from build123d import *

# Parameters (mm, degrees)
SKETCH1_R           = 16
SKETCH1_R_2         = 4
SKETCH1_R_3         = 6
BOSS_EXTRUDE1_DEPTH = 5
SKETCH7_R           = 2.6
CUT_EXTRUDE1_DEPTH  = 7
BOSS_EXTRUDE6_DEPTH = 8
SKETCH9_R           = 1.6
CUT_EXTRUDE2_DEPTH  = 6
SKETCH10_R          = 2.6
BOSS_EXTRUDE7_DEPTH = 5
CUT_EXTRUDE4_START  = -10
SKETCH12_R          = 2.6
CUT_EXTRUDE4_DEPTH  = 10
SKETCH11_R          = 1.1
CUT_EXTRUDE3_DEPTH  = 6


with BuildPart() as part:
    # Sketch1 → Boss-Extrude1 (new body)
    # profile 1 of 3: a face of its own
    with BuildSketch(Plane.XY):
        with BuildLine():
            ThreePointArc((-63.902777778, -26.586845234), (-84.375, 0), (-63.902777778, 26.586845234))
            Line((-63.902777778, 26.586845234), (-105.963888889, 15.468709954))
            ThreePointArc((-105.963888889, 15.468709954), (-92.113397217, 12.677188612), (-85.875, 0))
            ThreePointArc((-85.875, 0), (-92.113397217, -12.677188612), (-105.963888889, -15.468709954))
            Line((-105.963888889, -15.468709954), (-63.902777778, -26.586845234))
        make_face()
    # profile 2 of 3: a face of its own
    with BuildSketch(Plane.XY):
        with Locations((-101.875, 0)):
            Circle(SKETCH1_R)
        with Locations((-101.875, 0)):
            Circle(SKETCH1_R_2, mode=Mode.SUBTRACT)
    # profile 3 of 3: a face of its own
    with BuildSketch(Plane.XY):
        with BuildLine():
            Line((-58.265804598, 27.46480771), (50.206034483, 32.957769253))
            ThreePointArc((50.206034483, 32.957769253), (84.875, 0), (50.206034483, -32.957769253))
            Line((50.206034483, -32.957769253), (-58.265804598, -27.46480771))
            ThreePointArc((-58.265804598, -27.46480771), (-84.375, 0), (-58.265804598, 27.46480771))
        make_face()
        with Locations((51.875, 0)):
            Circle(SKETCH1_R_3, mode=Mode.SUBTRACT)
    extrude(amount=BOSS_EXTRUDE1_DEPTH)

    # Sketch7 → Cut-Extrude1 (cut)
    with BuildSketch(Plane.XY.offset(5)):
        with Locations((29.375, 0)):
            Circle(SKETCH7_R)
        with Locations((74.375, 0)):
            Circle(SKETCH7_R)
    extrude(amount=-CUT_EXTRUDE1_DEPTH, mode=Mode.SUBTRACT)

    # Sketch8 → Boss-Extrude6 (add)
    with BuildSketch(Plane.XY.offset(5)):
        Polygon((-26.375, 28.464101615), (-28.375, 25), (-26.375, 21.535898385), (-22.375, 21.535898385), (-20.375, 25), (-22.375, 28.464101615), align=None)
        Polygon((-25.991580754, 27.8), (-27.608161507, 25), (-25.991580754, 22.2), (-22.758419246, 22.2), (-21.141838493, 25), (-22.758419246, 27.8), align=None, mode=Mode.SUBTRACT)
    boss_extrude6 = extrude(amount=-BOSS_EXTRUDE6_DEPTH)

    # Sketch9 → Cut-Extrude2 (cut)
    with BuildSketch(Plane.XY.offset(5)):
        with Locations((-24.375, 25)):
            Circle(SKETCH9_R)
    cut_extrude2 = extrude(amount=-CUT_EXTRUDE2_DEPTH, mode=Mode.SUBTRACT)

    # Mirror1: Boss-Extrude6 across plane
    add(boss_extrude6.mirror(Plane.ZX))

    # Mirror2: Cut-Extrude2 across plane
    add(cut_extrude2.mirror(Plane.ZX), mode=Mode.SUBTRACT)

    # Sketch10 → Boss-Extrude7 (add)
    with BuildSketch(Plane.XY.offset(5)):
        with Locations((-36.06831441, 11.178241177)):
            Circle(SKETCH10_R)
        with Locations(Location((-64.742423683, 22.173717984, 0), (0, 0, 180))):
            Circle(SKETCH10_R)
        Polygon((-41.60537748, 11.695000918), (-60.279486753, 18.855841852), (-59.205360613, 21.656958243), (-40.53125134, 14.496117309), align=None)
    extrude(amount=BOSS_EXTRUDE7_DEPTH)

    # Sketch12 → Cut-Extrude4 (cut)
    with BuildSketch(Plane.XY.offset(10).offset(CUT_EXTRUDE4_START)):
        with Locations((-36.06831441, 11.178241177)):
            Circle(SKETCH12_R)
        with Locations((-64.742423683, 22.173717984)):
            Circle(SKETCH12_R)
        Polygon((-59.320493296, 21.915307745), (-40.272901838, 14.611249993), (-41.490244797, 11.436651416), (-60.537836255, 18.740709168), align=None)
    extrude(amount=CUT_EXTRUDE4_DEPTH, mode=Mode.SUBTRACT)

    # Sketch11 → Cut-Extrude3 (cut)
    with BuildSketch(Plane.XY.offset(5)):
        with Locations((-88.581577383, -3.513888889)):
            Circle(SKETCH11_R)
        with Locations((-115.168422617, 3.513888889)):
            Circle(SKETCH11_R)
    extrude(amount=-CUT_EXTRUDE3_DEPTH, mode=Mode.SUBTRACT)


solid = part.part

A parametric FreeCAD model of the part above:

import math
import FreeCAD as App
import Part
import Sketcher
from FreeCAD import Vector
Q = App.Units.Quantity

doc = App.newDocument("Part")
body = doc.addObject("PartDesign::Body", "Body")

# Sketch on XY plane
sketch1 = body.newObject("Sketcher::SketchObject", "Sketch")
sketch1.AttachmentSupport = (doc.getObject("XY_Plane"), [""])
sketch1.MapMode = "FlatFace"
sketch1.addGeometry([
    Part.LineSegment(Vector(-63.9, 26.6, 0), Vector(-106, 15.5, 0)),  # 0
    Part.ArcOfCircle(Part.Circle(Vector(-101.9, 0, 0), Vector(0, 0, 1), 16), math.radians(105), math.radians(255)),  # 1
    Part.LineSegment(Vector(-106, -15.5, 0), Vector(-63.9, -26.6, 0)),  # 2
    Part.ArcOfCircle(Part.Circle(Vector(-56.9, 0, 0), Vector(0, 0, 1), 27.5), math.radians(-104.81), math.radians(-92.9)),  # 3
    Part.LineSegment(Vector(-58.3, -27.5, 0), Vector(50.2, -33, 0)),  # 4
    Part.ArcOfCircle(Part.Circle(Vector(51.9, 0, 0), Vector(0, 0, 1), 33), math.radians(-93), math.radians(93)),  # 5
    Part.LineSegment(Vector(50.2, 33, 0), Vector(-58.3, 27.5, 0)),  # 6
    Part.ArcOfCircle(Part.Circle(Vector(-56.9, 0, 0), Vector(0, 0, 1), 27.5), math.radians(92.9), math.radians(104.81)),  # 7
    Part.Circle(Vector(51.9, 0, 0), Vector(0, 0, 1), 6),  # 8
    Part.Circle(Vector(-101.9, 0, 0), Vector(0, 0, 1), 4),  # 9
], False)
sketch1.addConstraint([
    Sketcher.Constraint("Tangent", 0, 2, 1, 1),
    Sketcher.Constraint("Tangent", 1, 2, 2, 1),
    Sketcher.Constraint("Tangent", 2, 2, 3, 1),
    Sketcher.Constraint("Tangent", 3, 2, 4, 1),
    Sketcher.Constraint("Tangent", 4, 2, 5, 1),
    Sketcher.Constraint("Tangent", 5, 2, 6, 1),
    Sketcher.Constraint("Tangent", 6, 2, 7, 1),
    Sketcher.Constraint("Tangent", 7, 2, 0, 1),
    Sketcher.Constraint("Coincident", 7, 3, 3, 3),
    Sketcher.Constraint("Coincident", 8, 3, 5, 3),
    Sketcher.Constraint("Coincident", 9, 3, 1, 3),
    Sketcher.Constraint("Equal", 3, 7),
    Sketcher.Constraint("Symmetric", 0, 2, 1, 2, -1),
    Sketcher.Constraint("PointOnObject", 5, 3, -1),
    Sketcher.Constraint("Diameter", 8, 12.0),
    Sketcher.Constraint("Diameter", 9, 8.0),
    Sketcher.Constraint("Radius", 1, 16.0),
    Sketcher.Constraint("Radius", 5, 33.0),
    Sketcher.Constraint("Radius", 3, 27.5),
    Sketcher.Constraint("DistanceX", 1, 3, 3, 3, 45.0),
    Sketcher.Constraint("DistanceX", 3, 3, 5, 3, 108.75),
    Sketcher.Constraint("DistanceX", 1, 3, -1, 1, 101.875),
])
pad1 = body.newObject("PartDesign::Pad", "Pad")
pad1.Profile = sketch1
pad1.Length = 5

# Sketch on XY plane
sketch2 = body.newObject("Sketcher::SketchObject", "Sketch001")
sketch2.AttachmentSupport = (doc.getObject("XY_Plane"), [""])
sketch2.MapMode = "FlatFace"
sketch2.AttachmentOffset = App.Placement(Vector(0, 0, 5), App.Rotation())
sketch2.addGeometry([
    Part.Circle(Vector(29.4, 0, 0), Vector(0, 0, 1), 2.6),
    Part.Circle(Vector(74.4, 0, 0), Vector(0, 0, 1), 2.6),
], False)
sketch2.addConstraint([
    Sketcher.Constraint("Equal", 0, 1),
    Sketcher.Constraint("PointOnObject", 0, 3, -1),
    Sketcher.Constraint("PointOnObject", 1, 3, -1),
    Sketcher.Constraint("Diameter", 0, 5.2),
    Sketcher.Constraint("DistanceX", 0, 3, 1, 3, 45.0),
    Sketcher.Constraint("DistanceX", -1, 1, 0, 3, 29.375),
])
pocket1 = body.newObject("PartDesign::Pocket", "Pocket")
pocket1.Profile = sketch2
pocket1.Length = 7

# Sketch on XY plane
sketch3 = body.newObject("Sketcher::SketchObject", "Sketch002")
sketch3.AttachmentSupport = (doc.getObject("XY_Plane"), [""])
sketch3.MapMode = "FlatFace"
sketch3.AttachmentOffset = App.Placement(Vector(0, 0, 5), App.Rotation())
sketch3.addGeometry([
    Part.LineSegment(Vector(-26.4, 28.5, 0), Vector(-28.4, 25, 0)),  # 0
    Part.LineSegment(Vector(-28.4, 25, 0), Vector(-26.4, 21.5, 0)),  # 1
    Part.LineSegment(Vector(-26.4, 21.5, 0), Vector(-22.4, 21.5, 0)),  # 2
    Part.LineSegment(Vector(-22.4, 21.5, 0), Vector(-20.4, 25, 0)),  # 3
    Part.LineSegment(Vector(-20.4, 25, 0), Vector(-22.4, 28.5, 0)),  # 4
    Part.LineSegment(Vector(-22.4, 28.5, 0), Vector(-26.4, 28.5, 0)),  # 5
    Part.LineSegment(Vector(-27.6, 25, 0), Vector(-26, 27.8, 0)),  # 6
    Part.LineSegment(Vector(-26, 27.8, 0), Vector(-22.8, 27.8, 0)),  # 7
    Part.LineSegment(Vector(-22.8, 27.8, 0), Vector(-21.1, 25, 0)),  # 8
    Part.LineSegment(Vector(-21.1, 25, 0), Vector(-22.8, 22.2, 0)),  # 9
    Part.LineSegment(Vector(-22.8, 22.2, 0), Vector(-26, 22.2, 0)),  # 10
    Part.LineSegment(Vector(-26, 22.2, 0), Vector(-27.6, 25, 0)),  # 11
], False)
sketch3.addConstraint([
    Sketcher.Constraint("Coincident", 0, 2, 1, 1),
    Sketcher.Constraint("Coincident", 1, 2, 2, 1),
    Sketcher.Constraint("Coincident", 2, 2, 3, 1),
    Sketcher.Constraint("Coincident", 3, 2, 4, 1),
    Sketcher.Constraint("Coincident", 4, 2, 5, 1),
    Sketcher.Constraint("Coincident", 5, 2, 0, 1),
    Sketcher.Constraint("Coincident", 6, 2, 7, 1),
    Sketcher.Constraint("Coincident", 7, 2, 8, 1),
    Sketcher.Constraint("Coincident", 8, 2, 9, 1),
    Sketcher.Constraint("Coincident", 9, 2, 10, 1),
    Sketcher.Constraint("Coincident", 10, 2, 11, 1),
    Sketcher.Constraint("Coincident", 11, 2, 6, 1),
    Sketcher.Constraint("Horizontal", 2),
    Sketcher.Constraint("Horizontal", 5),
    Sketcher.Constraint("Horizontal", 7),
    Sketcher.Constraint("Horizontal", 10),
    Sketcher.Constraint("Parallel", 0, 3),
    Sketcher.Constraint("Parallel", 1, 4),
    Sketcher.Constraint("Parallel", 3, 6),
    Sketcher.Constraint("Parallel", 4, 8),
    Sketcher.Constraint("Parallel", 6, 9),
    Sketcher.Constraint("Parallel", 8, 11),
    Sketcher.Constraint("Horizontal", 0, 2, 3, 2),
    Sketcher.Constraint("Horizontal", 3, 2, 8, 2),
    Sketcher.Constraint("Horizontal", 8, 2, 11, 2),
    Sketcher.Constraint("Vertical", 2, 2, 4, 2),
    Sketcher.Constraint("Vertical", 1, 2, 5, 2),
    Sketcher.Constraint("Vertical", 7, 2, 9, 2),
    Sketcher.Constraint("DistanceX", 2, 1, 2, 2, 4.0),
    Sketcher.Constraint("Angle", 0, Q("-120 deg")),
    Sketcher.Constraint("Distance", 0, 4.0),
    Sketcher.Constraint("DistanceY", -1, 1, 0, 2, 25.0),
    Sketcher.Constraint("DistanceY", -1, 1, 6, 2, 27.8),
    Sketcher.Constraint("DistanceX", 0, 2, -1, 1, 28.375),
    Sketcher.Constraint("DistanceX", 7, 1, 7, 2, 3.233162),
    Sketcher.Constraint("DistanceX", 6, 2, -1, 1, 25.991581),
])
pad2 = body.newObject("PartDesign::Pad", "Pad001")
pad2.Profile = sketch3
pad2.Length = 8
pad2.Reversed = True

# Sketch on XY plane
sketch4 = body.newObject("Sketcher::SketchObject", "Sketch003")
sketch4.AttachmentSupport = (doc.getObject("XY_Plane"), [""])
sketch4.MapMode = "FlatFace"
sketch4.AttachmentOffset = App.Placement(Vector(0, 0, 5), App.Rotation())
sketch4.addGeometry(Part.Circle(Vector(-24.4, 25, 0), Vector(0, 0, 1), 1.6), False)
sketch4.addConstraint([
    Sketcher.Constraint("Diameter", 0, 3.2),
    Sketcher.Constraint("DistanceY", -1, 1, 0, 3, 25.0),
    Sketcher.Constraint("DistanceX", 0, 3, -1, 1, 24.375),
])
pocket2 = body.newObject("PartDesign::Pocket", "Pocket001")
pocket2.Profile = sketch4
pocket2.Length = 6
doc.recompute()

mirrored = body.newObject("PartDesign::Mirrored", "Mirrored")
mirrored.Originals = [pad2]
mirrored.MirrorPlane = (doc.getObject("XZ_Plane"), [""])
body.Tip = mirrored
doc.recompute()

mirrored2 = body.newObject("PartDesign::Mirrored", "Mirrored001")
mirrored2.Originals = [pocket2]
mirrored2.MirrorPlane = (doc.getObject("XZ_Plane"), [""])
body.Tip = mirrored2

# Sketch on XY plane
sketch5 = body.newObject("Sketcher::SketchObject", "Sketch004")
sketch5.AttachmentSupport = (doc.getObject("XY_Plane"), [""])
sketch5.MapMode = "FlatFace"
sketch5.AttachmentOffset = App.Placement(Vector(0, 0, 5), App.Rotation())
sketch5.addGeometry([
    Part.Circle(Vector(-36.1, 11.2, 0), Vector(0, 0, 1), 2.6),  # 0
    Part.Circle(Vector(-64.7, 22.2, 0), Vector(0, 0, 1), 2.6),  # 1
    Part.LineSegment(Vector(-60.3, 18.9, 0), Vector(-41.6, 11.7, 0)),  # 2
    Part.LineSegment(Vector(-41.6, 11.7, 0), Vector(-40.5, 14.5, 0)),  # 3
    Part.LineSegment(Vector(-40.5, 14.5, 0), Vector(-59.2, 21.7, 0)),  # 4
    Part.LineSegment(Vector(-59.2, 21.7, 0), Vector(-60.3, 18.9, 0)),  # 5
], False)
sketch5.addConstraint([
    Sketcher.Constraint("Coincident", 2, 2, 3, 1),
    Sketcher.Constraint("Coincident", 3, 2, 4, 1),
    Sketcher.Constraint("Coincident", 4, 2, 5, 1),
    Sketcher.Constraint("Coincident", 5, 2, 2, 1),
    Sketcher.Constraint("Equal", 0, 1),
    Sketcher.Constraint("Perpendicular", 2, 3),
    Sketcher.Constraint("Perpendicular", 3, 4),
    Sketcher.Constraint("Perpendicular", 4, 5),
    Sketcher.Constraint("Diameter", 0, 5.2),
    Sketcher.Constraint("Distance", 2, 20.0),
    Sketcher.Constraint("Distance", 3, 3.0),
    Sketcher.Constraint("Angle", 2, Q("-20.98 deg")),
    Sketcher.Constraint("DistanceY", -1, 1, 2, 2, 11.695001),
    Sketcher.Constraint("DistanceY", 3, 2, 1, 3, 7.677601),
    Sketcher.Constraint("DistanceY", 0, 3, 5, 2, 7.677601),
    Sketcher.Constraint("DistanceX", 3, 2, -1, 1, 40.531251),
    Sketcher.Constraint("DistanceX", 1, 3, 0, 3, 28.674109),
    Sketcher.Constraint("DistanceX", 0, 3, -1, 1, 36.068314),
])
pad3 = body.newObject("PartDesign::Pad", "Pad002")
pad3.Profile = sketch5
pad3.Length = 5

# Sketch on XY plane
sketch6 = body.newObject("Sketcher::SketchObject", "Sketch005")
sketch6.AttachmentSupport = (doc.getObject("XY_Plane"), [""])
sketch6.MapMode = "FlatFace"
sketch6.addGeometry([
    Part.Circle(Vector(-36.1, 11.2, 0), Vector(0, 0, 1), 2.6),  # 0
    Part.Circle(Vector(-64.7, 22.2, 0), Vector(0, 0, 1), 2.6),  # 1
    Part.LineSegment(Vector(-40.3, 14.6, 0), Vector(-59.3, 21.9, 0)),  # 2
    Part.LineSegment(Vector(-59.3, 21.9, 0), Vector(-60.5, 18.7, 0)),  # 3
    Part.LineSegment(Vector(-60.5, 18.7, 0), Vector(-41.5, 11.4, 0)),  # 4
    Part.LineSegment(Vector(-41.5, 11.4, 0), Vector(-40.3, 14.6, 0)),  # 5
], False)
sketch6.addConstraint([
    Sketcher.Constraint("Coincident", 2, 2, 3, 1),
    Sketcher.Constraint("Coincident", 3, 2, 4, 1),
    Sketcher.Constraint("Coincident", 4, 2, 5, 1),
    Sketcher.Constraint("Coincident", 5, 2, 2, 1),
    Sketcher.Constraint("Equal", 0, 1),
    Sketcher.Constraint("Perpendicular", 2, 3),
    Sketcher.Constraint("Perpendicular", 3, 4),
    Sketcher.Constraint("Perpendicular", 4, 5),
    Sketcher.Constraint("Diameter", 0, 5.2),
    Sketcher.Constraint("Distance", 2, 20.4),
    Sketcher.Constraint("Distance", 3, 3.4),
    Sketcher.Constraint("Angle", 2, Q("159.02 deg")),
    Sketcher.Constraint("DistanceX", 5, 2, -1, 1, 40.272902),
    Sketcher.Constraint("DistanceY", -1, 1, 0, 3, 11.178241),
    Sketcher.Constraint("DistanceY", -1, 1, 3, 2, 18.740709),
    Sketcher.Constraint("DistanceX", 1, 3, 0, 3, 28.674109),
    Sketcher.Constraint("DistanceX", 1, 3, 2, 2, 5.42193),
    Sketcher.Constraint("DistanceY", 2, 2, 1, 3, 0.25841),
])
pocket3 = body.newObject("PartDesign::Pocket", "Pocket002")
pocket3.Profile = sketch6
pocket3.Length = 10
pocket3.Reversed = True

# Sketch on XY plane
sketch7 = body.newObject("Sketcher::SketchObject", "Sketch006")
sketch7.AttachmentSupport = (doc.getObject("XY_Plane"), [""])
sketch7.MapMode = "FlatFace"
sketch7.AttachmentOffset = App.Placement(Vector(0, 0, 5), App.Rotation())
sketch7.addGeometry([
    Part.Circle(Vector(-88.6, -3.5, 0), Vector(0, 0, 1), 1.1),
    Part.Circle(Vector(-115.2, 3.5, 0), Vector(0, 0, 1), 1.1),
], False)
sketch7.addConstraint([
    Sketcher.Constraint("Equal", 0, 1),
    Sketcher.Constraint("Diameter", 0, 2.2),
    Sketcher.Constraint("DistanceY", 0, 3, -1, 1, 3.513889),
    Sketcher.Constraint("DistanceY", -1, 1, 1, 3, 3.513889),
    Sketcher.Constraint("DistanceX", 0, 3, -1, 1, 88.581577),
    Sketcher.Constraint("DistanceX", 1, 3, -1, 1, 115.168423),
])
pocket4 = body.newObject("PartDesign::Pocket", "Pocket003")
pocket4.Profile = sketch7
pocket4.Length = 6

doc.recompute()
